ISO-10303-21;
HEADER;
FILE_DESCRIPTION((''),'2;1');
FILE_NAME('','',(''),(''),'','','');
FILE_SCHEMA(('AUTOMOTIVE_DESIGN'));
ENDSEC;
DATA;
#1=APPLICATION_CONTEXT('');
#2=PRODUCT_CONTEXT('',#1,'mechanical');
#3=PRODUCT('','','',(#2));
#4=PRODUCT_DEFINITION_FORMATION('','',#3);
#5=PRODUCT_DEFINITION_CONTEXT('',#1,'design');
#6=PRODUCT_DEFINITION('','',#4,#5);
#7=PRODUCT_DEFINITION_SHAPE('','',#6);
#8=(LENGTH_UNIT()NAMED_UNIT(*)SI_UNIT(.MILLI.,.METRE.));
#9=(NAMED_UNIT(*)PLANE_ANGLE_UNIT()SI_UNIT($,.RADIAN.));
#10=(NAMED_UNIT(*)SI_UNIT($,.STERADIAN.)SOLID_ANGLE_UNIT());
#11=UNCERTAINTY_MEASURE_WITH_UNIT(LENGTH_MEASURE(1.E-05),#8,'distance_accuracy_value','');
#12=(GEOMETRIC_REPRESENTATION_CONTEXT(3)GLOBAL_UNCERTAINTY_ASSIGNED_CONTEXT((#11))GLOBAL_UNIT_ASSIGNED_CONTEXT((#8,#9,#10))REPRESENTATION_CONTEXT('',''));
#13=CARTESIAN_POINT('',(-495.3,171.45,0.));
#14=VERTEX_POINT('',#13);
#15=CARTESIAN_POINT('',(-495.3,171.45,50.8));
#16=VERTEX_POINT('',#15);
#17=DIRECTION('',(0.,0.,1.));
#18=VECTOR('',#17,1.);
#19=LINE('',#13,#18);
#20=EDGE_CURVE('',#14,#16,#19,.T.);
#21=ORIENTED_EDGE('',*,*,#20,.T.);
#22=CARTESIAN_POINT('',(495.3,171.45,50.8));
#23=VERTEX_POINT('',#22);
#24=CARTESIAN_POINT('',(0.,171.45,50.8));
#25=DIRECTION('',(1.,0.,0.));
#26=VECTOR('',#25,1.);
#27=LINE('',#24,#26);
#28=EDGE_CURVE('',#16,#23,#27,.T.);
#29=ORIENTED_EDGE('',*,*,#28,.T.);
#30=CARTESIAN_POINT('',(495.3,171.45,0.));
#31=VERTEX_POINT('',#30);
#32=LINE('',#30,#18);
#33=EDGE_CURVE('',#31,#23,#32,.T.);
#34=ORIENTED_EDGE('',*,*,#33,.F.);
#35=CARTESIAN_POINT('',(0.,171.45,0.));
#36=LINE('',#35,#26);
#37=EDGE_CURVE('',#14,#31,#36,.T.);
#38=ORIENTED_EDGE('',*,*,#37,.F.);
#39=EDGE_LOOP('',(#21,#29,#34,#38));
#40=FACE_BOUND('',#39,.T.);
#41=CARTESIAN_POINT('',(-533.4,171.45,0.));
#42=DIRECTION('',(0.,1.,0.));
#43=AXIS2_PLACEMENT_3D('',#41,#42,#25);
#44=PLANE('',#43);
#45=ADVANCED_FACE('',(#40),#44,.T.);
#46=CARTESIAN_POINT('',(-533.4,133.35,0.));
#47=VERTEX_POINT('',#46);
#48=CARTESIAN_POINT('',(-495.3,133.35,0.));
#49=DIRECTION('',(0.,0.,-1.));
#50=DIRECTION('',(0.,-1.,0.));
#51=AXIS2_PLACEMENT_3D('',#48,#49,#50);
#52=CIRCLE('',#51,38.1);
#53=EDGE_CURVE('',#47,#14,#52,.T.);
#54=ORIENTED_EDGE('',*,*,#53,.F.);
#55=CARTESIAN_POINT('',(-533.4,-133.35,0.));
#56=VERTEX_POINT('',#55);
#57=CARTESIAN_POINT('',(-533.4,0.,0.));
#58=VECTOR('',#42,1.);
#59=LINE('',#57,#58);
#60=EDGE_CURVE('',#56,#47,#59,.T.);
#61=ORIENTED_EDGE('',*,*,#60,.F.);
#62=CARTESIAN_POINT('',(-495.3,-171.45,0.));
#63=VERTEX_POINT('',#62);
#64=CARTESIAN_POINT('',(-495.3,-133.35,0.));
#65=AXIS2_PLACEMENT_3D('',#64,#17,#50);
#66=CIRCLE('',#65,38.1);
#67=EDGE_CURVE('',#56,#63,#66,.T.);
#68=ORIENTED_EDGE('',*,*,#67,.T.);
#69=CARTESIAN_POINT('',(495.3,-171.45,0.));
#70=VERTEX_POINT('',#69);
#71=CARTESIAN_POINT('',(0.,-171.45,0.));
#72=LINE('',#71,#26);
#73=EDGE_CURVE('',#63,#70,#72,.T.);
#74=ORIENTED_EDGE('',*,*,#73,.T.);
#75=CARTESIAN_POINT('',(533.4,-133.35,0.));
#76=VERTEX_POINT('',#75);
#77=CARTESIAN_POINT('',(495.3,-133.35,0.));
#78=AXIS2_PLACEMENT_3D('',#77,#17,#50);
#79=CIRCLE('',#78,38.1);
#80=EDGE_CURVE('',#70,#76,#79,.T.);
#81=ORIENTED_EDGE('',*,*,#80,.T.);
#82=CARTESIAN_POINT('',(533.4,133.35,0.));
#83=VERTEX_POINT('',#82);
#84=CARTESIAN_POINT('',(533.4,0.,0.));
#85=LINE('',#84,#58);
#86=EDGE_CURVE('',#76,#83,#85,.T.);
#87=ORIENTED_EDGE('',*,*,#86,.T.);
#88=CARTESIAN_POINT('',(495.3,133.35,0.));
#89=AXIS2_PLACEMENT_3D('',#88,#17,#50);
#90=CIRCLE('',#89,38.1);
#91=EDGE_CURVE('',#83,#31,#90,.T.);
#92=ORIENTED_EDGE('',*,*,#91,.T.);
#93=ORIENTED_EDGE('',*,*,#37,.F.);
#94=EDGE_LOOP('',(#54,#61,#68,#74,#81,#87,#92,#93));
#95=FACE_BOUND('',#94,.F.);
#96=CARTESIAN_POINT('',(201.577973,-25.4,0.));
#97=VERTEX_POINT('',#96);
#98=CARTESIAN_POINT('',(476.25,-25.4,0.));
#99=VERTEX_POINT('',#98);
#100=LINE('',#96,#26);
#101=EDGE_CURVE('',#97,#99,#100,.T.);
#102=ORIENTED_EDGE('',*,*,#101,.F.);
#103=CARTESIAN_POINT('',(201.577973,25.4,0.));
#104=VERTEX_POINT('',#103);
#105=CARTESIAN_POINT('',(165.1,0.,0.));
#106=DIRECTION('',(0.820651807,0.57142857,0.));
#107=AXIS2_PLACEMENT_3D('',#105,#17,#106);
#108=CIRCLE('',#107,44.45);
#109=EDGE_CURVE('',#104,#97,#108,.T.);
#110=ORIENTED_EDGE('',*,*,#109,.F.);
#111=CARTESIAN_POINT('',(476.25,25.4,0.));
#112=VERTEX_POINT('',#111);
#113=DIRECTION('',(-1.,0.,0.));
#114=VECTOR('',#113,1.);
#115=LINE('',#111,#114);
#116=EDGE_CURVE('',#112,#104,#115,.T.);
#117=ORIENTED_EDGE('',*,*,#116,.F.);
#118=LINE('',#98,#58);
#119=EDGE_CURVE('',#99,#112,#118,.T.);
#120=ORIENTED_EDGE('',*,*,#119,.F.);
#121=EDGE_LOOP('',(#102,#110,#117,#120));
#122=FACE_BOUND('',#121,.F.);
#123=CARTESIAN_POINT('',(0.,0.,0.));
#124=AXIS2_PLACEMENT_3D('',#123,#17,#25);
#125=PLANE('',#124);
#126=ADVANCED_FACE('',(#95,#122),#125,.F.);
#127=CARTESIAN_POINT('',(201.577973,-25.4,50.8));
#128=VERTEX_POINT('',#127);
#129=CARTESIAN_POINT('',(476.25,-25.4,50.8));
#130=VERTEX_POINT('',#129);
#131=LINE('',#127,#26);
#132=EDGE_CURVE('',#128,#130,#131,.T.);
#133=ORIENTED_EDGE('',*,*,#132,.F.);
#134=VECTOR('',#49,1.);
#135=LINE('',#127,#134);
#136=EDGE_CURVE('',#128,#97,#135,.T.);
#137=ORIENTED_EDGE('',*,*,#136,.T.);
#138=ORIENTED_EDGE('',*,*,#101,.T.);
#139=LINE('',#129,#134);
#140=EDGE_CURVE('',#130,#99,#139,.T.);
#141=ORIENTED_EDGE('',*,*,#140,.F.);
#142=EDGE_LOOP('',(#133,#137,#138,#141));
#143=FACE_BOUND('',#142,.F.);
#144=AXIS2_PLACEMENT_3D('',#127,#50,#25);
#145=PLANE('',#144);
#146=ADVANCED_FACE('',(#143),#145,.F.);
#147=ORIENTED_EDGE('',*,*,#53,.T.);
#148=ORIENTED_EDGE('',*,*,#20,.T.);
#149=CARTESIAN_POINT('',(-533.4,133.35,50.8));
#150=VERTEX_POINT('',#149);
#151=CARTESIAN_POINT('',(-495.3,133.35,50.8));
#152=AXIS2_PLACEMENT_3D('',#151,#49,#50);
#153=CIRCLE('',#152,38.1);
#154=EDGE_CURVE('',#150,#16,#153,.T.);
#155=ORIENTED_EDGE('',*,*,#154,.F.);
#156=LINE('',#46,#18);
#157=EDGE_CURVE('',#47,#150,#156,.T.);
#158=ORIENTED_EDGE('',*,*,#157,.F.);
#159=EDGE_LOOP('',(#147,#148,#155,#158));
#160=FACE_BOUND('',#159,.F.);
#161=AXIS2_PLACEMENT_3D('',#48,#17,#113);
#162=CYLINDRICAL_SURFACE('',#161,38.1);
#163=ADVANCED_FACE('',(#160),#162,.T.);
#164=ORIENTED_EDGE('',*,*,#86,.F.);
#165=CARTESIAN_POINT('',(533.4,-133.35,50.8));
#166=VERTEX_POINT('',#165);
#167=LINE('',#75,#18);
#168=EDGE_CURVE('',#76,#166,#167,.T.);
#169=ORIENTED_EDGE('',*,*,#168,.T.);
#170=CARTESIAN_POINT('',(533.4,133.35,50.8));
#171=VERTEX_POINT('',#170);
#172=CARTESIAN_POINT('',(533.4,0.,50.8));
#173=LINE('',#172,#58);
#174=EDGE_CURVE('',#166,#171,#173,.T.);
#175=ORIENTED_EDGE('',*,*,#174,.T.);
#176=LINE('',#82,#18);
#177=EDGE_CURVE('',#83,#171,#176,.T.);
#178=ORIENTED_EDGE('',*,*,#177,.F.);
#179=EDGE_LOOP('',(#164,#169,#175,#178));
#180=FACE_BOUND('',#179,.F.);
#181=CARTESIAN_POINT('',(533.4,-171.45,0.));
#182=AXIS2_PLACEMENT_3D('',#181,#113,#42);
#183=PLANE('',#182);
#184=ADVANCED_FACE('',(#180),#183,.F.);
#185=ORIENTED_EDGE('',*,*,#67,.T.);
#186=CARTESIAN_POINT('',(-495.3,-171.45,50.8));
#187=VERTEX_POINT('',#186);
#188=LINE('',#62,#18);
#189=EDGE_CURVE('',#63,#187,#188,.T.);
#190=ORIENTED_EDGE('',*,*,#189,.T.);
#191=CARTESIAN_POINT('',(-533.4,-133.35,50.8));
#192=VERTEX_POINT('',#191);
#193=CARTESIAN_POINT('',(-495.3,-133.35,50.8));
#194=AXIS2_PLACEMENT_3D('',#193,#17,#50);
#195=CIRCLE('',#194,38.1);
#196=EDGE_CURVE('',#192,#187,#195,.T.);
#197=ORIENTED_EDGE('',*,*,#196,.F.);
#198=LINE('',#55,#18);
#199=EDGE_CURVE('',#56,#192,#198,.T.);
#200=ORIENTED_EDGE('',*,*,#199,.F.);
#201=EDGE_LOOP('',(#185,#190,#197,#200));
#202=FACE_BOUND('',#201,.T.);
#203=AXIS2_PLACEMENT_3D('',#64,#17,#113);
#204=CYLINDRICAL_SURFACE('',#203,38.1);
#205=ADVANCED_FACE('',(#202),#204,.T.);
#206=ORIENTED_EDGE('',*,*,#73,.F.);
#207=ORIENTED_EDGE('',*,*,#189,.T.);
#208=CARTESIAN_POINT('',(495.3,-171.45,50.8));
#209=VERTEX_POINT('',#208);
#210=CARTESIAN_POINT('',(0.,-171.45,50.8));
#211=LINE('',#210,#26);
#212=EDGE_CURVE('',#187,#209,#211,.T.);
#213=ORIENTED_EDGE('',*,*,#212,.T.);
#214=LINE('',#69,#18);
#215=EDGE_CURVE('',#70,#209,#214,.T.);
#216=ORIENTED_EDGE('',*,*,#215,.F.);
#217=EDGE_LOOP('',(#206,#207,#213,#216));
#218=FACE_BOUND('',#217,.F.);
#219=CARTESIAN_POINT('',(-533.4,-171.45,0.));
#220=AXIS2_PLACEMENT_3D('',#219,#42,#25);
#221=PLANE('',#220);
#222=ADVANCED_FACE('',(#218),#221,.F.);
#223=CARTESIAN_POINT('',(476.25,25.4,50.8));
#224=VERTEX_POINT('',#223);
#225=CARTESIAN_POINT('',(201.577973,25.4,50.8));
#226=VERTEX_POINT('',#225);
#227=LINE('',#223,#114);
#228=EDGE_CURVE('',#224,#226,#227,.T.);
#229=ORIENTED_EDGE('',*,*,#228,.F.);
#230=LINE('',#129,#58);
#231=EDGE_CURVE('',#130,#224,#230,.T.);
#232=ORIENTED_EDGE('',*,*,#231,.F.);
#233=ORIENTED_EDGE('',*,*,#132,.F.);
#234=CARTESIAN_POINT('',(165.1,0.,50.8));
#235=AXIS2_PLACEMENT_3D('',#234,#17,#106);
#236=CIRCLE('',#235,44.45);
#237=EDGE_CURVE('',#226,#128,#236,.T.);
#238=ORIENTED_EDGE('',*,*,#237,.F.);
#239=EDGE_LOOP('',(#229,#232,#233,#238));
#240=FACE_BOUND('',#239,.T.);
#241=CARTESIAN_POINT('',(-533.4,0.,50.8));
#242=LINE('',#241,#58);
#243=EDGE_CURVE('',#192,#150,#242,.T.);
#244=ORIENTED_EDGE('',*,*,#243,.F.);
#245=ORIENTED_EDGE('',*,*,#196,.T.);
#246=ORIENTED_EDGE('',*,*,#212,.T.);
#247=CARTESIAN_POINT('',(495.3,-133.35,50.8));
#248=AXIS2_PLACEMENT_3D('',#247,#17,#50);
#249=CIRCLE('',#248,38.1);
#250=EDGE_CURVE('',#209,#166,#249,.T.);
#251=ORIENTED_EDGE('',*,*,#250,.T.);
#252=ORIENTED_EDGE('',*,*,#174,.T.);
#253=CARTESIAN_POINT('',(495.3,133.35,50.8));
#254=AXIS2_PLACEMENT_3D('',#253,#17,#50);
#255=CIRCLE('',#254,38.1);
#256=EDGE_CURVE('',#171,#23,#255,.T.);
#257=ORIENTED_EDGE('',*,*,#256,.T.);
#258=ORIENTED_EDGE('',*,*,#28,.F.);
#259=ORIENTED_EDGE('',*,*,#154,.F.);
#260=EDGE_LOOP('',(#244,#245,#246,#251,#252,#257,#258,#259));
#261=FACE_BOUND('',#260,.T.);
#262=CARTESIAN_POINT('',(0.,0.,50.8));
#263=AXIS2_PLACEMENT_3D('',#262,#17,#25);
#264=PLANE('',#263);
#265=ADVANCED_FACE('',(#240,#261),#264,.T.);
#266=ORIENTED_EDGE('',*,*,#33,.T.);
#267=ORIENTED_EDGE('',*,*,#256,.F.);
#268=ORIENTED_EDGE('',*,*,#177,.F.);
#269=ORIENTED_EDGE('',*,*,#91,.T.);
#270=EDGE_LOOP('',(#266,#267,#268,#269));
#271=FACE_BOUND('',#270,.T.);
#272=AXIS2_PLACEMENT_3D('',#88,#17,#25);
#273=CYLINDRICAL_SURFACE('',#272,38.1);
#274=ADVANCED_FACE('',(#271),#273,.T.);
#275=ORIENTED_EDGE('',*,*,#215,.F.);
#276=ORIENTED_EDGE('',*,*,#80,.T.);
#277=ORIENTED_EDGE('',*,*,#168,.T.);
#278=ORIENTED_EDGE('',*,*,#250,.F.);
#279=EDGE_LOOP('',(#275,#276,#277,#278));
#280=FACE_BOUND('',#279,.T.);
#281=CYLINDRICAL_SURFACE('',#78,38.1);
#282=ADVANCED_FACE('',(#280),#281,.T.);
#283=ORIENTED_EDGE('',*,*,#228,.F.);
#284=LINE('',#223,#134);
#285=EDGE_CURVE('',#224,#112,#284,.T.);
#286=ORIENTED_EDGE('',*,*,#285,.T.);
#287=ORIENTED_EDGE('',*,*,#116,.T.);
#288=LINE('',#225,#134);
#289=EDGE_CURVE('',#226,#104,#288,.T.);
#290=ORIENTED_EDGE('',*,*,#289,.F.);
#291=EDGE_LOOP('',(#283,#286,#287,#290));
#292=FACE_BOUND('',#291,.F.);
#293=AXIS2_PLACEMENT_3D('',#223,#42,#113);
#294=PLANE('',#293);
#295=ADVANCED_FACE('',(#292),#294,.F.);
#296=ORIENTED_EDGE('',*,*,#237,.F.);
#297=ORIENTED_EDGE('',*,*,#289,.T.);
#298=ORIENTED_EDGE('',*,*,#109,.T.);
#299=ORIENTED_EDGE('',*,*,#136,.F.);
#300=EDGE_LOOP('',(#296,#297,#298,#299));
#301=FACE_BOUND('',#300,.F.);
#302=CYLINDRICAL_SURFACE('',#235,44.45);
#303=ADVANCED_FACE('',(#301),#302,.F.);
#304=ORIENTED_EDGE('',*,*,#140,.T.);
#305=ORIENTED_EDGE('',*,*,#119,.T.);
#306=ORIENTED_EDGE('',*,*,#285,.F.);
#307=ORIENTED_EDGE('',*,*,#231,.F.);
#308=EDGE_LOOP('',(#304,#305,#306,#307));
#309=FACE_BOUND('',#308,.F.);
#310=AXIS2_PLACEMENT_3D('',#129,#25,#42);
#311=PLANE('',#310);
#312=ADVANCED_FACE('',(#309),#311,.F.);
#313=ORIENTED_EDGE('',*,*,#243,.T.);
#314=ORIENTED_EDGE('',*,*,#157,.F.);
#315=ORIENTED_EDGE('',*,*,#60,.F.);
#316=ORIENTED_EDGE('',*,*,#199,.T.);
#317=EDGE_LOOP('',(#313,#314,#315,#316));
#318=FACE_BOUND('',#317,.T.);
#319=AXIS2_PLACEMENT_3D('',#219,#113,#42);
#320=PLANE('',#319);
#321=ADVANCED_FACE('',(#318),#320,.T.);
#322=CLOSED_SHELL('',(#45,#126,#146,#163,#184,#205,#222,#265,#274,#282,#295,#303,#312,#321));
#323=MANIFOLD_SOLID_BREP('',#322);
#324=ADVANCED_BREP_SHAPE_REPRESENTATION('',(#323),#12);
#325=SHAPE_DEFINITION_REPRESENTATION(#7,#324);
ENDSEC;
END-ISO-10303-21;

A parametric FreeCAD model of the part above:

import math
import FreeCAD as App
import Part
import Sketcher
Q = App.Units.Quantity


def edges_at(feature, points):
    """Names of the edges that pass closest to the given points."""
    edges = feature.Shape.Edges
    near = lambda p: min(range(len(edges)), key=lambda i: edges[i].distToShape(Part.Vertex(*p))[0])
    return sorted({f"Edge{near(p) + 1}" for p in points})

doc = App.newDocument("Part")
body = doc.addObject("PartDesign::Body", "Body")

# Sketch on XY plane
sketch1 = body.newObject("Sketcher::SketchObject", "Sketch")
sketch1.AttachmentSupport = (doc.getObject("XY_Plane"), [""])
sketch1.MapMode = "FlatFace"
sketch1.addGeometry([
    Part.LineSegment(App.Vector(-533, 171, 0), App.Vector(-533, -171, 0)),
    Part.LineSegment(App.Vector(-533, -171, 0), App.Vector(533, -171, 0)),
    Part.LineSegment(App.Vector(533, -171, 0), App.Vector(533, 171, 0)),
    Part.LineSegment(App.Vector(533, 171, 0), App.Vector(-533, 171, 0)),
], False)
sketch1.addConstraint([
    Sketcher.Constraint("Coincident", 0, 2, 1, 1),
    Sketcher.Constraint("Coincident", 1, 2, 2, 1),
    Sketcher.Constraint("Coincident", 2, 2, 3, 1),
    Sketcher.Constraint("Coincident", 3, 2, 0, 1),
    Sketcher.Constraint("Vertical", 0),
    Sketcher.Constraint("Horizontal", 1),
    Sketcher.Constraint("Vertical", 2),
    Sketcher.Constraint("Horizontal", 3),
    Sketcher.Constraint("Symmetric", 0, 2, 2, 2, -1, 1),
    Sketcher.Constraint("DistanceX", 1, 1, 1, 2, Q("42 in")),
    Sketcher.Constraint("DistanceY", 0, 2, 0, 1, Q("13.5 in")),
])
pad1 = body.newObject("PartDesign::Pad", "Pad")
pad1.Profile = sketch1
pad1.Length = Q("2 in")
doc.recompute()

fillet = body.newObject("PartDesign::Fillet", "Fillet")
fillet.Base = (pad1, edges_at(pad1, [
    (-533.4, 171.45, 25.4),
    (-533.4, -171.45, 25.4),
    (533.4, 171.45, 25.4),
    (533.4, -171.45, 25.4),
]))
fillet.Radius = Q("1.5 in")

# Sketch on XY plane
sketch2 = body.newObject("Sketcher::SketchObject", "Sketch001")
sketch2.AttachmentSupport = (doc.getObject("XY_Plane"), [""])
sketch2.MapMode = "FlatFace"
sketch2.AttachmentOffset = App.Placement(App.Vector(0, 0, 2 * 25.4), App.Rotation())
sketch2.addGeometry([
    Part.ArcOfCircle(Part.Circle(App.Vector(165, 0, 0), App.Vector(0, 0, 1), 44), math.radians(35), math.radians(325)),
    Part.LineSegment(App.Vector(202, -25, 0), App.Vector(476, -25, 0)),
    Part.LineSegment(App.Vector(476, -25, 0), App.Vector(476, 25, 0)),
    Part.LineSegment(App.Vector(476, 25, 0), App.Vector(202, 25, 0)),
], False)
sketch2.addConstraint([
    Sketcher.Constraint("Coincident", 0, 2, 1, 1),
    Sketcher.Constraint("Coincident", 1, 2, 2, 1),
    Sketcher.Constraint("Coincident", 2, 2, 3, 1),
    Sketcher.Constraint("Coincident", 3, 2, 0, 1),
    Sketcher.Constraint("Horizontal", 1),
    Sketcher.Constraint("Vertical", 2),
    Sketcher.Constraint("Horizontal", 3),
    Sketcher.Constraint("Symmetric", 0, 2, 3, 2, -1),
    Sketcher.Constraint("DistanceY", 2, 1, 2, 2, Q("2 in")),
    Sketcher.Constraint("Radius", 0, Q("1.75 in")),
    Sketcher.Constraint("DistanceX", -1, 1, 0, 3, Q("6.5 in")),
    Sketcher.Constraint("DistanceX", -1, 1, 1, 2, Q("18.75 in")),
])
pocket1 = body.newObject("PartDesign::Pocket", "Pocket")
pocket1.Profile = sketch2
pocket1.Length = Q("2 in")

doc.recompute()
